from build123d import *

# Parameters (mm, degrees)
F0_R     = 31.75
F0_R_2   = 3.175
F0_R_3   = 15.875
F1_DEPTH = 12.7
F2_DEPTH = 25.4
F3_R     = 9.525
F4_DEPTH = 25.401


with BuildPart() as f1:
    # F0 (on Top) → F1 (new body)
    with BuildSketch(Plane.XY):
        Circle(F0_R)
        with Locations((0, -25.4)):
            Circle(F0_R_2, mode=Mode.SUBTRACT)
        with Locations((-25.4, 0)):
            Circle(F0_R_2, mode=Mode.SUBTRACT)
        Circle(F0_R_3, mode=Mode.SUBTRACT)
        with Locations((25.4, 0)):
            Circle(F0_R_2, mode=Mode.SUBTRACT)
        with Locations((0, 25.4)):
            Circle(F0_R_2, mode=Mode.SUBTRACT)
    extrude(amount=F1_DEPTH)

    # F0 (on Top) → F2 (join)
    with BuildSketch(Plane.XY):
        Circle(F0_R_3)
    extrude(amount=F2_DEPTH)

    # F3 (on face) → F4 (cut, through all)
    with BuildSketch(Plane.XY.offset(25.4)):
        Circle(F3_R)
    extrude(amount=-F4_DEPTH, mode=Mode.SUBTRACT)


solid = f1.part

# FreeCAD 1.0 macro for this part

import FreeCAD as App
import Part
import Sketcher
Q = App.Units.Quantity

doc = App.newDocument("Part")
body = doc.addObject("PartDesign::Body", "Body")

# Sketch on XY plane
sketch1 = doc.addObject("Sketcher::SketchObject", "Sketch")
body.addObject(sketch1)
sketch1.AttachmentSupport = (doc.XY_Plane, [""])
sketch1.MapMode = "FlatFace"
sketch1.addGeometry([
    Part.Circle(App.Vector(0, 0, 0), App.Vector(0, 0, 1), 31.8),  # 0
    Part.Circle(App.Vector(0, -25.4, 0), App.Vector(0, 0, 1), 3.2),  # 1
    Part.Circle(App.Vector(0, 0, 0), App.Vector(0, 0, 1), 15.9),  # 2
    Part.Circle(App.Vector(-25.4, 0, 0), App.Vector(0, 0, 1), 3.2),  # 3
    Part.Circle(App.Vector(25.4, 0, 0), App.Vector(0, 0, 1), 3.2),  # 4
    Part.Circle(App.Vector(0, 25.4, 0), App.Vector(0, 0, 1), 3.2),  # 5
], False)
sketch1.addConstraint([
    Sketcher.Constraint("Coincident", 0, 3, -1, 1),
    Sketcher.Constraint("Coincident", 2, 3, -1, 1),
    Sketcher.Constraint("Equal", 1, 3),
    Sketcher.Constraint("Equal", 3, 4),
    Sketcher.Constraint("Equal", 4, 5),
    Sketcher.Constraint("Symmetric", 3, 3, 4, 3, -1, 1),
    Sketcher.Constraint("Symmetric", 1, 3, 5, 3, -1, 1),
    Sketcher.Constraint("PointOnObject", 1, 3, -2),
    Sketcher.Constraint("PointOnObject", 3, 3, -1),
    Sketcher.Constraint("Diameter", 0, Q("2.5 in")),
    Sketcher.Constraint("Diameter", 1, Q("0.25 in")),
    Sketcher.Constraint("Diameter", 2, Q("1.25 in")),
    Sketcher.Constraint("DistanceY", 1, 3, -1, 1, Q("1 in")),
    Sketcher.Constraint("DistanceX", 3, 3, -1, 1, Q("1 in")),
])
pad1 = doc.addObject("PartDesign::Pad", "Pad")
body.addObject(pad1)
pad1.Profile = sketch1
pad1.Length = Q("0.5 in")

# Sketch on XY plane
sketch2 = doc.addObject("Sketcher::SketchObject", "Sketch001")
body.addObject(sketch2)
sketch2.AttachmentSupport = (doc.XY_Plane, [""])
sketch2.MapMode = "FlatFace"
sketch2.addGeometry(Part.Circle(App.Vector(0, 0, 0), App.Vector(0, 0, 1), 16), False)
sketch2.addConstraint([
    Sketcher.Constraint("Coincident", 0, 3, -1, 1),
    Sketcher.Constraint("Diameter", 0, Q("1.25 in")),
])
pad2 = doc.addObject("PartDesign::Pad", "Pad001")
body.addObject(pad2)
pad2.Profile = sketch2
pad2.Length = Q("1 in")

# Sketch on XY plane
sketch3 = doc.addObject("Sketcher::SketchObject", "Sketch002")
body.addObject(sketch3)
sketch3.AttachmentSupport = (doc.XY_Plane, [""])
sketch3.MapMode = "FlatFace"
sketch3.AttachmentOffset = App.Placement(App.Vector(0, 0, 1 * 25.4), App.Rotation())
sketch3.addGeometry(Part.Circle(App.Vector(0, 0, 0), App.Vector(0, 0, 1), 10), False)
sketch3.addConstraint([
    Sketcher.Constraint("Coincident", 0, 3, -1, 1),
    Sketcher.Constraint("Diameter", 0, Q("0.75 in")),
])
pocket1 = doc.addObject("PartDesign::Pocket", "Pocket")
body.addObject(pocket1)
pocket1.Profile = sketch3
pocket1.Type = "ThroughAll"

doc.recompute()
